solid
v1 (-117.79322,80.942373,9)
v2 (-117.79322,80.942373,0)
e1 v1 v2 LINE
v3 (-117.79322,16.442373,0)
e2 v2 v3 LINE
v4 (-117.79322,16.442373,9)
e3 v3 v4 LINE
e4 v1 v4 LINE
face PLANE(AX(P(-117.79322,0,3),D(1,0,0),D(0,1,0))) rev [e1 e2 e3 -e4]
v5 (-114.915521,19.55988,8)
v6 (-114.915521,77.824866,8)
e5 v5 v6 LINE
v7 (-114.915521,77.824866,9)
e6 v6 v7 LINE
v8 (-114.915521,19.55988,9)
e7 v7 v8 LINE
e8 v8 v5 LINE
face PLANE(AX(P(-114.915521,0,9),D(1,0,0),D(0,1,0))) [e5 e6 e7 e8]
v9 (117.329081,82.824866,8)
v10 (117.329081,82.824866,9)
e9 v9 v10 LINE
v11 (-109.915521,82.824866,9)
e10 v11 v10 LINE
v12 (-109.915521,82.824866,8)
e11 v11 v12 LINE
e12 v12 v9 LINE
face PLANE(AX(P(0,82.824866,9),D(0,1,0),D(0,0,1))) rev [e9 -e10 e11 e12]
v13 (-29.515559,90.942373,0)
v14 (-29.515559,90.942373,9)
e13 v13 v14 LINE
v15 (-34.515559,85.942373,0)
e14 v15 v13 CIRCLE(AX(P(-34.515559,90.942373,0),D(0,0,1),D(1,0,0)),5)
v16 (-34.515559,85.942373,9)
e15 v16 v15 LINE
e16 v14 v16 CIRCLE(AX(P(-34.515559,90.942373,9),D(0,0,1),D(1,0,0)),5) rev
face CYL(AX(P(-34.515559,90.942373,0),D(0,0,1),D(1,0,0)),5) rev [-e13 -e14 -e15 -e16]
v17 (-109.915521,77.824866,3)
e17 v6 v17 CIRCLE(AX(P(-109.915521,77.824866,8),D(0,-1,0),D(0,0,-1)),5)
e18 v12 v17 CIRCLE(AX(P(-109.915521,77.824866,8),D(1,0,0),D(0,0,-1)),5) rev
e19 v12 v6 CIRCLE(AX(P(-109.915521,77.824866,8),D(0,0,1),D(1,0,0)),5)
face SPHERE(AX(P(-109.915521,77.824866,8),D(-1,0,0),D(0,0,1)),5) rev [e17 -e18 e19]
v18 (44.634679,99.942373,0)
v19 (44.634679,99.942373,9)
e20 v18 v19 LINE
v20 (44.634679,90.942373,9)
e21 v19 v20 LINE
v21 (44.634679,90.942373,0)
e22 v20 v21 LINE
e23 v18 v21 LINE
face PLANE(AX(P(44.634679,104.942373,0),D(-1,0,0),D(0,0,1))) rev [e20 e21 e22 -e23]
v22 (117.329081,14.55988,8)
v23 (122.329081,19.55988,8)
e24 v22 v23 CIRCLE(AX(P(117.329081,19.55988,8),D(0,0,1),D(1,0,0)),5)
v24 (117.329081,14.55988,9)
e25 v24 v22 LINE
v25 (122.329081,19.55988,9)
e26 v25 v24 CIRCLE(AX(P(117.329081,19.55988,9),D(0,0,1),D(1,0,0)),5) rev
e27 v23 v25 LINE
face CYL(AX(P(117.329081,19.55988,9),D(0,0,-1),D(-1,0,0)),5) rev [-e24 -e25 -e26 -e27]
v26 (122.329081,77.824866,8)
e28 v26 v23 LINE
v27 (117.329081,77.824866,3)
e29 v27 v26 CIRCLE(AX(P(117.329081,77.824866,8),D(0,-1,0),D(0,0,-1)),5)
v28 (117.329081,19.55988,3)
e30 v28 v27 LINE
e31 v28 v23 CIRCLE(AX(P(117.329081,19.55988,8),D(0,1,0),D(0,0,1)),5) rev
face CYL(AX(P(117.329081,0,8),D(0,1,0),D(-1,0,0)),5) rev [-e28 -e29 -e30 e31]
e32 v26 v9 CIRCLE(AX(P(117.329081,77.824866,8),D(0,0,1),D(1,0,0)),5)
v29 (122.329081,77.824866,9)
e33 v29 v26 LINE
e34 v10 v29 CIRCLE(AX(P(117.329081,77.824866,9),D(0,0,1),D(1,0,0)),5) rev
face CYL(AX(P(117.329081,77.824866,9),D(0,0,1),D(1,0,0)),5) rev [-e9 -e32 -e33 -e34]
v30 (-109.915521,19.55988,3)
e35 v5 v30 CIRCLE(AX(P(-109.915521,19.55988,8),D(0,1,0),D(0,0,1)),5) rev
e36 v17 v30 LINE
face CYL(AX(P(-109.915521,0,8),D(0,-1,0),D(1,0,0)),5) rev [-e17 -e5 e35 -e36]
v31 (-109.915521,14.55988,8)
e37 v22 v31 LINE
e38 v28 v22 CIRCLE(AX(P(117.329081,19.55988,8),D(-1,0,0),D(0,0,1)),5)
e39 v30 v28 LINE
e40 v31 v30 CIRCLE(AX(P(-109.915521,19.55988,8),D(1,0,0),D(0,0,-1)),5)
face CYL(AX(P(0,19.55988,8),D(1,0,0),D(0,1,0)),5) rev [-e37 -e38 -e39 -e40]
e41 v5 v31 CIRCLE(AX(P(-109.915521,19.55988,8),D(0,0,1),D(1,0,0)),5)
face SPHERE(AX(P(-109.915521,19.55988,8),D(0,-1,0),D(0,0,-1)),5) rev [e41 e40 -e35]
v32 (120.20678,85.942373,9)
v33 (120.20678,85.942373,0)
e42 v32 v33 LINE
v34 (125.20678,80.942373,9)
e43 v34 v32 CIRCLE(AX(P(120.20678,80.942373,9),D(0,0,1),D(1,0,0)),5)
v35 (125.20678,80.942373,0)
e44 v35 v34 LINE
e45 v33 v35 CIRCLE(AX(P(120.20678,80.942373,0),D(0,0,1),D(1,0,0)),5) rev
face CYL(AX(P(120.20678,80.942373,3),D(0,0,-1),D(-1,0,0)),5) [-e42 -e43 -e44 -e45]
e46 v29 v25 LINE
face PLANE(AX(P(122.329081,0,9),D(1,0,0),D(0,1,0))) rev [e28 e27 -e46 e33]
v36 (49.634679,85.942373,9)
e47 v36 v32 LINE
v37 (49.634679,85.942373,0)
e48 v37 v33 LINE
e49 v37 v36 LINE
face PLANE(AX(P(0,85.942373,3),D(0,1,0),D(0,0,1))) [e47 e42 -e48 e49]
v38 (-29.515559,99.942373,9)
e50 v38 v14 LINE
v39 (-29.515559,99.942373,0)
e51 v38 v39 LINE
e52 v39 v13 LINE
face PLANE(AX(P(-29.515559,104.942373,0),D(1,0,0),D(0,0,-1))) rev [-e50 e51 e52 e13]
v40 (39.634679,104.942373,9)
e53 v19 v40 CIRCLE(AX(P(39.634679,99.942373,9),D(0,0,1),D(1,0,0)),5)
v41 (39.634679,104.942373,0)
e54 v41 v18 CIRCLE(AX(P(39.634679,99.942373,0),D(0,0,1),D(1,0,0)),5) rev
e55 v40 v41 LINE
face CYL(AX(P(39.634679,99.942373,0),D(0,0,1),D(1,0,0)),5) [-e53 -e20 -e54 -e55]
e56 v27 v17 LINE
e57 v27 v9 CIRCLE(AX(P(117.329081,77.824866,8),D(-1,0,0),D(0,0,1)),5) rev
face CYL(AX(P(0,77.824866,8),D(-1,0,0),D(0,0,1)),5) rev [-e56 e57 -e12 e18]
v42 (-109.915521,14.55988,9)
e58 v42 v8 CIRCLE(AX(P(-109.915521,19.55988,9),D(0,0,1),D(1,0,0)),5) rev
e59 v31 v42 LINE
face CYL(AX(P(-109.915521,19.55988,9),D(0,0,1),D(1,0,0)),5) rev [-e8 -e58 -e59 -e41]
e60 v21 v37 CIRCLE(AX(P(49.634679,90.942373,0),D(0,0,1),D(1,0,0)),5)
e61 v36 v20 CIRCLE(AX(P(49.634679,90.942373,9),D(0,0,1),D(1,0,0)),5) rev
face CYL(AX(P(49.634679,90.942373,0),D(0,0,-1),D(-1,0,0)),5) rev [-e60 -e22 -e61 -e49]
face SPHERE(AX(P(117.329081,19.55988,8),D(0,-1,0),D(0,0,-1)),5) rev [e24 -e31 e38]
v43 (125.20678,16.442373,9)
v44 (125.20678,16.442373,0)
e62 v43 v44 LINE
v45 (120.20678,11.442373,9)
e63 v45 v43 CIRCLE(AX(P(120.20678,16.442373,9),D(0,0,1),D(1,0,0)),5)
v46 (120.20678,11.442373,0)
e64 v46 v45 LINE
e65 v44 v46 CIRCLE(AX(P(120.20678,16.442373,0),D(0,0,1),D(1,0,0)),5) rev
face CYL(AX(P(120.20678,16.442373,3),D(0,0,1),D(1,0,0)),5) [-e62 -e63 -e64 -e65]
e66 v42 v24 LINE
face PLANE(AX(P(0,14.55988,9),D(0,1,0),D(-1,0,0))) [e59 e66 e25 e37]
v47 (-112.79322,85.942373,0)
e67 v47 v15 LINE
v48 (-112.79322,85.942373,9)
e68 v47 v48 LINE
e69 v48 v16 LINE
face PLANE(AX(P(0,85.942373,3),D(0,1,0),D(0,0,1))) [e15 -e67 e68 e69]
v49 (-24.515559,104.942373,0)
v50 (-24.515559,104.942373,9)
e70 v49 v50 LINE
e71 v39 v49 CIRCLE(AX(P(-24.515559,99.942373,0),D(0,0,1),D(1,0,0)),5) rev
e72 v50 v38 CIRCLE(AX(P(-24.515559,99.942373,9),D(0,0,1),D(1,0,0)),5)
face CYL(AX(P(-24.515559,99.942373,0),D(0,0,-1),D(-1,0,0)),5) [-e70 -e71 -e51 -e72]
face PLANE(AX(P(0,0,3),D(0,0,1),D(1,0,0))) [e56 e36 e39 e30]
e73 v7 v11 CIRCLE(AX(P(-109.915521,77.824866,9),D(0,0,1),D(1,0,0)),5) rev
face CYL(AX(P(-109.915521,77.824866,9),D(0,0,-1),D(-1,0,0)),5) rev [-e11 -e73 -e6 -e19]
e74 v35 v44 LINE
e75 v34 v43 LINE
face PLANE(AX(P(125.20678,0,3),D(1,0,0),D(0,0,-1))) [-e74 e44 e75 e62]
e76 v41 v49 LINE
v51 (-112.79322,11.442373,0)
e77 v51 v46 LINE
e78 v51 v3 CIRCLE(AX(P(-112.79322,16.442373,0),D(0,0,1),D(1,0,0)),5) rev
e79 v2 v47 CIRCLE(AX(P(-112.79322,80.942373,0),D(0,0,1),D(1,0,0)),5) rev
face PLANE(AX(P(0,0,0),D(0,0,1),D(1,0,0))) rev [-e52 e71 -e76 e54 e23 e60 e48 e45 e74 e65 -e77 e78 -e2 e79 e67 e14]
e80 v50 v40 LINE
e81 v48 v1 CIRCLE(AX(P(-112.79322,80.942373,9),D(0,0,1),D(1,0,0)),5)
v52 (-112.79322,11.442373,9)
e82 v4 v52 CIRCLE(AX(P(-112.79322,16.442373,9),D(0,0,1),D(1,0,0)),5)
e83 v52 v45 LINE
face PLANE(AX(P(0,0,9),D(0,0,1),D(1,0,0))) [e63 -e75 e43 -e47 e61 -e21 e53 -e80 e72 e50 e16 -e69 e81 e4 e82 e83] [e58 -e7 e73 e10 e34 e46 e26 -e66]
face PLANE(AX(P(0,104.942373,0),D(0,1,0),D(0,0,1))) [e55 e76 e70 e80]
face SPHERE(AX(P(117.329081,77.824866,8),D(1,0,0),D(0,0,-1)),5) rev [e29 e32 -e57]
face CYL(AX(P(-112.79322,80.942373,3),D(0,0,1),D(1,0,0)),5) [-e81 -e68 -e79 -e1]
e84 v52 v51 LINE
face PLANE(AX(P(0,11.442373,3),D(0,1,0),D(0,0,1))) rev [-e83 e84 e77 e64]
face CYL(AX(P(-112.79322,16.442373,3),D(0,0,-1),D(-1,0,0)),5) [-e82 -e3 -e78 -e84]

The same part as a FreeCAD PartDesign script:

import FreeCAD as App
import Part
import Sketcher

V = App.Vector
Q = App.Units.Quantity


def edges_at(feature, points):
    """Names of the edges that pass closest to the given points."""
    edges = feature.Shape.Edges
    near = lambda p: min(range(len(edges)), key=lambda i: edges[i].distToShape(Part.Vertex(*p))[0])
    return sorted({f"Edge{near(p) + 1}" for p in points})

doc = App.newDocument("Part")
body = doc.addObject("PartDesign::Body", "Body")

# Sketch on XY plane
sketch1 = body.newObject("Sketcher::SketchObject", "Sketch")
sketch1.AttachmentSupport = (doc.getObject("XY_Plane"), [""])
sketch1.MapMode = "FlatFace"
sketch1.addGeometry([
    Part.LineSegment(V(125, 11, 0), V(125, 86, 0)),
    Part.LineSegment(V(125, 86, 0), V(-118, 86, 0)),
    Part.LineSegment(V(-118, 86, 0), V(-118, 11, 0)),
    Part.LineSegment(V(-118, 11, 0), V(125, 11, 0)),
], False)
sketch1.addConstraint([
    Sketcher.Constraint("Coincident", 0, 2, 1, 1),
    Sketcher.Constraint("Coincident", 1, 2, 2, 1),
    Sketcher.Constraint("Coincident", 2, 2, 3, 1),
    Sketcher.Constraint("Coincident", 3, 2, 0, 1),
    Sketcher.Constraint("Vertical", 0),
    Sketcher.Constraint("Horizontal", 1),
    Sketcher.Constraint("Vertical", 2),
    Sketcher.Constraint("Horizontal", 3),
    Sketcher.Constraint("DistanceX", 1, 2, 1, 1, Q("243 mm")),
    Sketcher.Constraint("DistanceY", 0, 1, 0, 2, Q("74.5 mm")),
    Sketcher.Constraint("DistanceX", -1, 1, 0, 2, Q("125.20678 mm")),
    Sketcher.Constraint("DistanceY", -1, 1, 0, 2, Q("85.942373 mm")),
])
pad1 = body.newObject("PartDesign::Pad", "Pad")
pad1.Profile = sketch1
pad1.Length = 3

# Sketch on XY plane
sketch2 = body.newObject("Sketcher::SketchObject", "Sketch001")
sketch2.AttachmentSupport = (doc.getObject("XY_Plane"), [""])
sketch2.MapMode = "FlatFace"
sketch2.addGeometry([
    Part.LineSegment(V(125, 11, 0), V(125, 86, 0)),  # 0
    Part.LineSegment(V(125, 86, 0), V(-118, 86, 0)),  # 1
    Part.LineSegment(V(-118, 86, 0), V(-118, 11, 0)),  # 2
    Part.LineSegment(V(-118, 11, 0), V(125, 11, 0)),  # 3
    Part.LineSegment(V(-115, 83, 0), V(122, 83, 0)),  # 4
    Part.LineSegment(V(122, 83, 0), V(122, 15, 0)),  # 5
    Part.LineSegment(V(122, 15, 0), V(-115, 15, 0)),  # 6
    Part.LineSegment(V(-115, 15, 0), V(-115, 83, 0)),  # 7
], False)
sketch2.addConstraint([
    Sketcher.Constraint("Coincident", 0, 2, 1, 1),
    Sketcher.Constraint("Coincident", 1, 2, 2, 1),
    Sketcher.Constraint("Coincident", 2, 2, 3, 1),
    Sketcher.Constraint("Coincident", 3, 2, 0, 1),
    Sketcher.Constraint("Coincident", 4, 2, 5, 1),
    Sketcher.Constraint("Coincident", 5, 2, 6, 1),
    Sketcher.Constraint("Coincident", 6, 2, 7, 1),
    Sketcher.Constraint("Coincident", 7, 2, 4, 1),
    Sketcher.Constraint("Vertical", 0),
    Sketcher.Constraint("Horizontal", 1),
    Sketcher.Constraint("Vertical", 2),
    Sketcher.Constraint("Horizontal", 3),
    Sketcher.Constraint("Horizontal", 4),
    Sketcher.Constraint("Vertical", 5),
    Sketcher.Constraint("Horizontal", 6),
    Sketcher.Constraint("Vertical", 7),
    Sketcher.Constraint("DistanceX", 1, 2, 1, 1, Q("243 mm")),
    Sketcher.Constraint("DistanceY", 0, 1, 0, 2, Q("74.5 mm")),
    Sketcher.Constraint("DistanceX", 4, 2, 0, 2, Q("2.877699 mm")),
    Sketcher.Constraint("DistanceX", 2, 2, 6, 2, Q("2.877699 mm")),
    Sketcher.Constraint("DistanceY", 5, 2, 5, 1, Q("68.264986 mm")),
    Sketcher.Constraint("DistanceX", -1, 1, 0, 2, Q("125.20678 mm")),
    Sketcher.Constraint("DistanceY", -1, 1, 5, 2, Q("14.55988 mm")),
    Sketcher.Constraint("DistanceY", -1, 1, 0, 2, Q("85.942373 mm")),
])
pad2 = body.newObject("PartDesign::Pad", "Pad001")
pad2.Profile = sketch2
pad2.Length = 9

# Sketch on XZ plane
sketch3 = body.newObject("Sketcher::SketchObject", "Sketch002")
sketch3.AttachmentSupport = (doc.getObject("XZ_Plane"), [""])
sketch3.MapMode = "FlatFace"
sketch3.AttachmentOffset = App.Placement(V(0, 0, -85.942373), App.Rotation())
sketch3.addGeometry([
    Part.LineSegment(V(-30, 0, 0), V(-30, 9, 0)),
    Part.LineSegment(V(-30, 9, 0), V(45, 9, 0)),
    Part.LineSegment(V(45, 9, 0), V(45, 0, 0)),
    Part.LineSegment(V(45, 0, 0), V(-30, 0, 0)),
], False)
sketch3.addConstraint([
    Sketcher.Constraint("Coincident", 0, 2, 1, 1),
    Sketcher.Constraint("Coincident", 1, 2, 2, 1),
    Sketcher.Constraint("Coincident", 2, 2, 3, 1),
    Sketcher.Constraint("Coincident", 3, 2, 0, 1),
    Sketcher.Constraint("Vertical", 0),
    Sketcher.Constraint("Horizontal", 1),
    Sketcher.Constraint("Vertical", 2),
    Sketcher.Constraint("Horizontal", 3),
    Sketcher.Constraint("PointOnObject", 2, 2, -1),
    Sketcher.Constraint("DistanceY", 0, 1, 0, 2, Q("9 mm")),
    Sketcher.Constraint("DistanceX", 1, 1, 1, 2, Q("74.150238 mm")),
    Sketcher.Constraint("DistanceX", 0, 2, -1, 1, Q("29.515559 mm")),
])
pad3 = body.newObject("PartDesign::Pad", "Pad002")
pad3.Profile = sketch3
pad3.Length = 19
pad3.Reversed = True
doc.recompute()

fillet = body.newObject("PartDesign::Fillet", "Fillet")
fillet.Base = (pad3, edges_at(pad3, [
    (3.707, 82.825, 3),
    (122.329, 48.692, 3),
    (-114.916, 82.825, 6),
    (122.329, 82.825, 6),
    (122.329, 14.56, 6),
    (3.707, 14.56, 3),
    (-114.916, 14.56, 6),
    (-114.916, 48.692, 3),
    (-29.516, 85.942, 4.5),
    (44.635, 85.942, 4.5),
    (-29.516, 104.942, 4.5),
    (44.635, 104.942, 4.5),
    (125.207, 11.442, 4.5),
    (-117.793, 11.442, 4.5),
    (-117.793, 85.942, 4.5),
    (125.207, 85.942, 4.5),
]))
fillet.Radius = 5

doc.recompute()
